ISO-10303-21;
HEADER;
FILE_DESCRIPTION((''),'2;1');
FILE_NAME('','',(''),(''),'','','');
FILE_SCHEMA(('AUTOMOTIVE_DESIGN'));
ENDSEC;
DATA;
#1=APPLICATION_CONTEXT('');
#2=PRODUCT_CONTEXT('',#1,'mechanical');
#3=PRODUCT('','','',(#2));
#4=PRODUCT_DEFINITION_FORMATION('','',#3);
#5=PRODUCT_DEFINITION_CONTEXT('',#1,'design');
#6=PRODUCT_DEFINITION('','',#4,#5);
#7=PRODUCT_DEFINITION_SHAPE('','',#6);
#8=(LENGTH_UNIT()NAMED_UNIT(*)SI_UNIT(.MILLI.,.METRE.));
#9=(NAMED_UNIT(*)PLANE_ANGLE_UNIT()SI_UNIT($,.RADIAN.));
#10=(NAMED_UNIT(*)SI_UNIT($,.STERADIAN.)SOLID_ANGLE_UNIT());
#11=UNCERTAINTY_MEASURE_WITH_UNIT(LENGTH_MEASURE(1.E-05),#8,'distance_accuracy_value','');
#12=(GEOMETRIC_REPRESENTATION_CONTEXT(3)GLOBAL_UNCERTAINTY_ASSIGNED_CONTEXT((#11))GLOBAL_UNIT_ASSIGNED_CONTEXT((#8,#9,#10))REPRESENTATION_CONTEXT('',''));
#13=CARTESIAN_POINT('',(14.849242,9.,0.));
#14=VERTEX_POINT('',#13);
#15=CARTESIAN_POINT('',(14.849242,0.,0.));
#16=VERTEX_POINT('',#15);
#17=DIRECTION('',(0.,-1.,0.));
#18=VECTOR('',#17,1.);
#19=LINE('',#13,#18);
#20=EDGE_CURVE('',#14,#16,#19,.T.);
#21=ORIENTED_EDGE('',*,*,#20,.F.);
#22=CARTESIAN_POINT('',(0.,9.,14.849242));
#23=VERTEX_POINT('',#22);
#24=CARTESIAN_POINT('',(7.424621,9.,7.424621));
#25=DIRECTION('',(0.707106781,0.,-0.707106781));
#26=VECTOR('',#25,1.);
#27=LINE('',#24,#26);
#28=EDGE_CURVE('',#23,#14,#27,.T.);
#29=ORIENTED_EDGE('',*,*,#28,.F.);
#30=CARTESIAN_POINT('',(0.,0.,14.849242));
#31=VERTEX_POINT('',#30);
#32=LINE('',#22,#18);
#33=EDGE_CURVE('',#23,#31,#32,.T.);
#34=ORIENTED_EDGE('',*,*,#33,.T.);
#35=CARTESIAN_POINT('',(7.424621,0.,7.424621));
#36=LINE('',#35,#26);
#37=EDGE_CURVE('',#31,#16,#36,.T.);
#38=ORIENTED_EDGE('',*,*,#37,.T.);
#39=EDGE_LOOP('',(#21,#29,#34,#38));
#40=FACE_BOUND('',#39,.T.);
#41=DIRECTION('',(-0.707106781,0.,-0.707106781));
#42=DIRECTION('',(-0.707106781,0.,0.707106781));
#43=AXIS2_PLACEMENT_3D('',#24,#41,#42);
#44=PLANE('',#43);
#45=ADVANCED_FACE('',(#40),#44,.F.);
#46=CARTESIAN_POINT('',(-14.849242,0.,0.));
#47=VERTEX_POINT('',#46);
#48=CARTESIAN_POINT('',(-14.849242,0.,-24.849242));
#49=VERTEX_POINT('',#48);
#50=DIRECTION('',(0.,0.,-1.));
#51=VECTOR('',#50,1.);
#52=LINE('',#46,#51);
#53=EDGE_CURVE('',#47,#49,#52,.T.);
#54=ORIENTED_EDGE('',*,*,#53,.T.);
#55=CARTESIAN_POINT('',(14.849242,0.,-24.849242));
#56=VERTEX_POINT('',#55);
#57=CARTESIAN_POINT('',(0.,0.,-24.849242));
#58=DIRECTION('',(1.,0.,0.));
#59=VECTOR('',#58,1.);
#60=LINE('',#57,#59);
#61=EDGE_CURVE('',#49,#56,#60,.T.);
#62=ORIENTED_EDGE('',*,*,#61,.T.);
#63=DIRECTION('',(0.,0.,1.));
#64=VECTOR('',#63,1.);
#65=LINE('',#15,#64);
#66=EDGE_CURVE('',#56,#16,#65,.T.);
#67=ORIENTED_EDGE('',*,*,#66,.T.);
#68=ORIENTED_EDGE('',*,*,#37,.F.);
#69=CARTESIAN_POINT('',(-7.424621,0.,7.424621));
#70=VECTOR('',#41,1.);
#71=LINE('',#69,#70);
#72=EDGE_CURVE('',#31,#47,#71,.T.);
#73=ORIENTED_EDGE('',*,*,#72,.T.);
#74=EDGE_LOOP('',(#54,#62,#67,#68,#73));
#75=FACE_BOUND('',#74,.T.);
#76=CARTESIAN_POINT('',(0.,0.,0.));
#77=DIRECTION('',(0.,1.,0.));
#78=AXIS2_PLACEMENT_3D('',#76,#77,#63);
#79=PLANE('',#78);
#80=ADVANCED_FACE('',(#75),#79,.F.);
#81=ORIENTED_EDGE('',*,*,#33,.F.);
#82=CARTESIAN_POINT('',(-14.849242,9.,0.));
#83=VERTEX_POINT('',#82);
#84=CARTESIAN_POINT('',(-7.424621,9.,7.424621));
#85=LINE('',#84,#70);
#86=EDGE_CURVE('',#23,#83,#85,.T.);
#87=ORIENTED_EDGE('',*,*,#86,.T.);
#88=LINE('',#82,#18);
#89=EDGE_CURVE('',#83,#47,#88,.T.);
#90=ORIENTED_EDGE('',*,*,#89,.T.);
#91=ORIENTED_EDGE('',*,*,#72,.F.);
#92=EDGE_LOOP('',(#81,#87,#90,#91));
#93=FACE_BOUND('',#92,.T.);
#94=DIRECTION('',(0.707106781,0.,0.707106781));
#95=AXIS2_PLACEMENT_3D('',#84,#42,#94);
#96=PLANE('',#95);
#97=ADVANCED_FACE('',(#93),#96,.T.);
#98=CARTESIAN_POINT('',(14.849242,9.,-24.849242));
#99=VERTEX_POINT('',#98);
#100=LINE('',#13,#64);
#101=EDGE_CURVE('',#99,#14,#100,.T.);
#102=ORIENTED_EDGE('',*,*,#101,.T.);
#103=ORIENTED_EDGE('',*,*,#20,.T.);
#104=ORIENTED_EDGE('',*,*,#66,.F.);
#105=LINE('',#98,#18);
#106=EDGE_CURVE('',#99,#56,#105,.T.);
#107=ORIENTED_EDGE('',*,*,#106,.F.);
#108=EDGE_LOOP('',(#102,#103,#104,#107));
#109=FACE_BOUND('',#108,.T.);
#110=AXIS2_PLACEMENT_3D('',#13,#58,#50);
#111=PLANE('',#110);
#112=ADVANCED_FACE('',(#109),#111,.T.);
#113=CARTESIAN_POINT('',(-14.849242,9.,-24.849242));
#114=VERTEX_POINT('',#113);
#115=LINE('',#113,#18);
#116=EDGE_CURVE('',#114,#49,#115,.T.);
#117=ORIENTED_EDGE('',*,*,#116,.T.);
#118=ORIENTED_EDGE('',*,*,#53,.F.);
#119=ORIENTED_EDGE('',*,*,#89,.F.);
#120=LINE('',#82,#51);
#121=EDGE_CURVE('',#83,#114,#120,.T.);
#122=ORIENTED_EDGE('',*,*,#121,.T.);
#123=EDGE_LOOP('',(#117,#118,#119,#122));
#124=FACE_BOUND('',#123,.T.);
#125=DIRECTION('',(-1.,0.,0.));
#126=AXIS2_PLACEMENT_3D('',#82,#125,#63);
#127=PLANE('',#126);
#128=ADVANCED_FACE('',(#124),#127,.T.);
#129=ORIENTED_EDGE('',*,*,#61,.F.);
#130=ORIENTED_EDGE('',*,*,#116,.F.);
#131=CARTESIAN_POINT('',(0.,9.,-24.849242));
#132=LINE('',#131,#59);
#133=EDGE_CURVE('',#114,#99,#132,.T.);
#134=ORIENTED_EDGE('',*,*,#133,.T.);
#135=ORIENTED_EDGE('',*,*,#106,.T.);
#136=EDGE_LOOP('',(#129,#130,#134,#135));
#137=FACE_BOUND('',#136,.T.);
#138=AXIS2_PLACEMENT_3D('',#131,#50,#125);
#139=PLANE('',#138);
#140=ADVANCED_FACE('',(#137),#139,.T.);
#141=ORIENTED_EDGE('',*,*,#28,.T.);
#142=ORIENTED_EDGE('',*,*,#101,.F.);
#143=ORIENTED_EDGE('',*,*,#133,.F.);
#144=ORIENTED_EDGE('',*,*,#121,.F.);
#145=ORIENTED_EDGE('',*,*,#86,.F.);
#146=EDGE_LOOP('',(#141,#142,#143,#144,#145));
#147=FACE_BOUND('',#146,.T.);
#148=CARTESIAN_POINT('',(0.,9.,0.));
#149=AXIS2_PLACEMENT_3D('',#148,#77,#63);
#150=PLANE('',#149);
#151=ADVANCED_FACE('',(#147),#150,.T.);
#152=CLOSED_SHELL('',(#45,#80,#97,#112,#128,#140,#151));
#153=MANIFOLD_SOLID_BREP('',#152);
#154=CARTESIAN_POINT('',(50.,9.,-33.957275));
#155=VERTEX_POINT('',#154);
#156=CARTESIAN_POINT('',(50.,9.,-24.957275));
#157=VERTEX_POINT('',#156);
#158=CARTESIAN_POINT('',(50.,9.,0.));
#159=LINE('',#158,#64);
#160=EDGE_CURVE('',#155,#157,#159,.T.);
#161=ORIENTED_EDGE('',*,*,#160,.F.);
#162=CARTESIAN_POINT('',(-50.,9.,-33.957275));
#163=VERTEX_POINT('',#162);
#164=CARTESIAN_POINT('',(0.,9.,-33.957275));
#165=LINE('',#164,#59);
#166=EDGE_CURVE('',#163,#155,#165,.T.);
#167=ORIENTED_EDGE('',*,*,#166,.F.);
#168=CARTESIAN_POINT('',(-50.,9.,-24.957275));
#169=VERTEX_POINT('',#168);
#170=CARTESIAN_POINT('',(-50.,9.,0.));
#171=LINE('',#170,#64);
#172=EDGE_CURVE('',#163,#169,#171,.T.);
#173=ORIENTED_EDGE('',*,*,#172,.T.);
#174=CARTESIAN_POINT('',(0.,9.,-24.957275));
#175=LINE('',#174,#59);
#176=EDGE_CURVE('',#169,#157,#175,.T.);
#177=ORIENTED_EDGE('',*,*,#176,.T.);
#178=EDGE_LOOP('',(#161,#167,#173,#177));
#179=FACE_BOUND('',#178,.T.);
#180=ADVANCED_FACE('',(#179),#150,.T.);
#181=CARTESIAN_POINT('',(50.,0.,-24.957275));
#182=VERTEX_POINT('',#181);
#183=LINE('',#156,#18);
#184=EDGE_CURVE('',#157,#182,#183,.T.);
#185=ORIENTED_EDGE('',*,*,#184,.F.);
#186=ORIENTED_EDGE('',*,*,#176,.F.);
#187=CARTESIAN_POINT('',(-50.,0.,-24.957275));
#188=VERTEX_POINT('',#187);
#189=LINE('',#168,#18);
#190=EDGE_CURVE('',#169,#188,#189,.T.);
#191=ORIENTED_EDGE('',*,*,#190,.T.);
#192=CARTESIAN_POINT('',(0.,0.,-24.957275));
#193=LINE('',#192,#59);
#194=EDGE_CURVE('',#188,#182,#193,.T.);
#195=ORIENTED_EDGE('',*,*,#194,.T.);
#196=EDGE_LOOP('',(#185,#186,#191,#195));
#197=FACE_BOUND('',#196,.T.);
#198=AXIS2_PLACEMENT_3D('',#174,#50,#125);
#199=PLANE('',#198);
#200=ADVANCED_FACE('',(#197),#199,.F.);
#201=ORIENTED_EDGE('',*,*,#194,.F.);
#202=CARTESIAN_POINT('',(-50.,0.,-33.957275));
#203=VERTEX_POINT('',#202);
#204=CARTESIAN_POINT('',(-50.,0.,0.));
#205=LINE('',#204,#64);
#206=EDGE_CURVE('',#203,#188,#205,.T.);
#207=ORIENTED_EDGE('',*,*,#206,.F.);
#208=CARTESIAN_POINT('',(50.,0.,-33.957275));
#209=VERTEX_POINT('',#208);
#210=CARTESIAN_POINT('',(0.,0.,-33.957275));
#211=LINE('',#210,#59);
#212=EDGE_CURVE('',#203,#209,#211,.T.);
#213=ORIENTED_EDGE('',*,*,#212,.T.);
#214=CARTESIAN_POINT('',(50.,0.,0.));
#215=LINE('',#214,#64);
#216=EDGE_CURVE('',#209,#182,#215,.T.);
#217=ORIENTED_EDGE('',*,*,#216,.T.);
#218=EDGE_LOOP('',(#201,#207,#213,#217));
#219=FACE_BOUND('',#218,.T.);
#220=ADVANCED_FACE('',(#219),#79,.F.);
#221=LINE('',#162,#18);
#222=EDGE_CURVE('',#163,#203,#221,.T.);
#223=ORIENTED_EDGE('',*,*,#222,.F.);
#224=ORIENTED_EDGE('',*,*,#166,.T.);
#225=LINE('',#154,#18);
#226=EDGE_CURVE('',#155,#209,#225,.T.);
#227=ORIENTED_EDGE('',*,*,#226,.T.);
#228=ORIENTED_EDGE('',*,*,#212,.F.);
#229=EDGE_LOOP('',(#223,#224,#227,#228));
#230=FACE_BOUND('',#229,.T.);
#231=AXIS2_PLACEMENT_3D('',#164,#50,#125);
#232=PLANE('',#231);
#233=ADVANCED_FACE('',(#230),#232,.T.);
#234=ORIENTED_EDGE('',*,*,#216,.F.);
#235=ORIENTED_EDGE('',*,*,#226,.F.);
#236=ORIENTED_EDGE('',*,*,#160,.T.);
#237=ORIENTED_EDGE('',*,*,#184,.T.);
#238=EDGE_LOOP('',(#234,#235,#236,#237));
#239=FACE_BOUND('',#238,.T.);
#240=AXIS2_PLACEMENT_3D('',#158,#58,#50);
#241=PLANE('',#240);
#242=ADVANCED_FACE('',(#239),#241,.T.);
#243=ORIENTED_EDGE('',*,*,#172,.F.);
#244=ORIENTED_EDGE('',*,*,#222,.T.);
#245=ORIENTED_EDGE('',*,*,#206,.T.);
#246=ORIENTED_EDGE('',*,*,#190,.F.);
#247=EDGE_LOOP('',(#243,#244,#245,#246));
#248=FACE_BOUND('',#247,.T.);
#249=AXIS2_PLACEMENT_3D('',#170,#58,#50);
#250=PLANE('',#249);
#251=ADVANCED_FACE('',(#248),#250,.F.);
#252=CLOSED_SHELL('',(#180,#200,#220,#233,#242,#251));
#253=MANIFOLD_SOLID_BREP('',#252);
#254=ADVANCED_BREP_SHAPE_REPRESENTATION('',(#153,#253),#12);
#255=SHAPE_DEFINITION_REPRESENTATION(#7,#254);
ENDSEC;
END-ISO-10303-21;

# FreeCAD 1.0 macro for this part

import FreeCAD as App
import Part
import Sketcher

V = App.Vector
Q = App.Units.Quantity

doc = App.newDocument("Part")
params = doc.addObject("Spreadsheet::Sheet", "Params")
for row, (alias, value) in enumerate([
    ("sketch1_length", "21 mm"),
    ("pad1_length", "9 mm"),
    ("sketch2_width", "100 mm"),
    ("sketch2_height", "9 mm"),
    ("pad2_length", "9 mm"),
], start=1):
    params.set(f"A{row}", alias)
    params.set(f"B{row}", "=" + value)
    params.setAlias(f"B{row}", alias)

body = doc.addObject("PartDesign::Body", "Body")

sketch1 = body.newObject("Sketcher::SketchObject", "Sketch")
sketch1.AttachmentSupport = (doc.getObject("XZ_Plane"), [""])
sketch1.MapMode = "FlatFace"
sketch1.addGeometry([
    Part.LineSegment(V(-15, -25, 0), V(-15, 0, 0)),
    Part.LineSegment(V(-15, 0, 0), V(0, 15, 0)),
    Part.LineSegment(V(0, 15, 0), V(15, 0, 0)),
    Part.LineSegment(V(15, 0, 0), V(15, -25, 0)),
    Part.LineSegment(V(15, -25, 0), V(-15, -25, 0)),
], False)
sketch1.addConstraint([
    Sketcher.Constraint("Coincident", 0, 2, 1, 1),
    Sketcher.Constraint("Coincident", 1, 2, 2, 1),
    Sketcher.Constraint("Coincident", 2, 2, 3, 1),
    Sketcher.Constraint("Coincident", 3, 2, 4, 1),
    Sketcher.Constraint("Coincident", 4, 2, 0, 1),
    Sketcher.Constraint("Vertical", 0),
    Sketcher.Constraint("Vertical", 3),
    Sketcher.Constraint("Horizontal", 4),
    Sketcher.Constraint("Symmetric", 0, 2, 2, 2, -1, 1),
    Sketcher.Constraint("PointOnObject", 0, 2, -1),
    Sketcher.Constraint("PointOnObject", 1, 2, -2),
    Sketcher.Constraint("Perpendicular", 1, 2),
    Sketcher.Constraint("Distance", 1, Q("21 mm")),
    Sketcher.Constraint("DistanceY", 0, 1, 0, 2, Q("24.849242 mm")),
])
sketch1.setExpression("Constraints[12]", "Params.sketch1_length")
pad1 = body.newObject("PartDesign::Pad", "Pad")
pad1.Profile = sketch1
pad1.setExpression("Length", "Params.pad1_length")
pad1.Reversed = True
body2 = doc.addObject("PartDesign::Body", "Body001")

sketch2 = body2.newObject("Sketcher::SketchObject", "Sketch001")
sketch2.AttachmentSupport = (doc.getObject("XZ_Plane001"), [""])
sketch2.MapMode = "FlatFace"
sketch2.addGeometry([
    Part.LineSegment(V(-50, -34, 0), V(-50, -25, 0)),
    Part.LineSegment(V(-50, -25, 0), V(50, -25, 0)),
    Part.LineSegment(V(50, -25, 0), V(50, -34, 0)),
    Part.LineSegment(V(50, -34, 0), V(-50, -34, 0)),
], False)
sketch2.addConstraint([
    Sketcher.Constraint("Coincident", 0, 2, 1, 1),
    Sketcher.Constraint("Coincident", 1, 2, 2, 1),
    Sketcher.Constraint("Coincident", 2, 2, 3, 1),
    Sketcher.Constraint("Coincident", 3, 2, 0, 1),
    Sketcher.Constraint("Vertical", 0),
    Sketcher.Constraint("Horizontal", 1),
    Sketcher.Constraint("Vertical", 2),
    Sketcher.Constraint("Horizontal", 3),
    Sketcher.Constraint("DistanceX", 1, 1, 1, 2, Q("100 mm")),
    Sketcher.Constraint("DistanceY", 0, 1, 0, 2, Q("9 mm")),
    Sketcher.Constraint("DistanceX", 0, 2, -1, 1, Q("50 mm")),
    Sketcher.Constraint("DistanceY", 0, 2, -1, 1, Q("24.957275 mm")),
])
sketch2.setExpression("Constraints[8]", "Params.sketch2_width")
sketch2.setExpression("Constraints[9]", "Params.sketch2_height")
pad2 = body2.newObject("PartDesign::Pad", "Pad001")
pad2.Profile = sketch2
pad2.setExpression("Length", "Params.pad2_length")
pad2.Reversed = True

doc.recompute()
